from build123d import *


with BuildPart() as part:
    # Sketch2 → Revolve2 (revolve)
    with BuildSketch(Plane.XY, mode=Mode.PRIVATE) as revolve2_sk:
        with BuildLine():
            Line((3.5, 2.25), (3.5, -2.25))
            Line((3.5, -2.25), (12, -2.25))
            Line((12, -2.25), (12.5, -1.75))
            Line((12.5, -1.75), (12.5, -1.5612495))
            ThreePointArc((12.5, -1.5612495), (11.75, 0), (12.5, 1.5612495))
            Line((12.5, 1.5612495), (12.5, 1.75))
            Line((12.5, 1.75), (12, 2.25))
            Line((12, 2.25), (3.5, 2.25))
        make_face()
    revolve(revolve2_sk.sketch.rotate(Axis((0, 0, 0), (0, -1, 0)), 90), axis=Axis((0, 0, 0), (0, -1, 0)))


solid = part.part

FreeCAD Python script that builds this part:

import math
import FreeCAD as App
import Part
import Sketcher
from FreeCAD import Vector

doc = App.newDocument("Part")
body = doc.addObject("PartDesign::Body", "Body")

sketch1 = body.newObject("Sketcher::SketchObject", "Sketch")
sketch1.AttachmentSupport = (doc.getObject("XY_Plane"), [""])
sketch1.MapMode = "FlatFace"
sketch1.addGeometry([
    Part.LineSegment(Vector(3.5, 2.25, 0), Vector(3.5, -2.25, 0)),
    Part.LineSegment(Vector(3.5, -2.25, 0), Vector(12, -2.25, 0)),
    Part.LineSegment(Vector(12, -2.25, 0), Vector(12.5, -1.75, 0)),
    Part.LineSegment(Vector(12.5, -1.75, 0), Vector(12.5, -1.561249, 0)),
    Part.ArcOfCircle(Part.Circle(Vector(13.75, 0, 0), Vector(0, 0, 1), 2), math.radians(128.682187), math.radians(231.317813)),
    Part.LineSegment(Vector(12.5, 1.561249, 0), Vector(12.5, 1.75, 0)),
    Part.LineSegment(Vector(12.5, 1.75, 0), Vector(12, 2.25, 0)),
    Part.LineSegment(Vector(12, 2.25, 0), Vector(3.5, 2.25, 0)),
], False)
sketch1.addConstraint([
    Sketcher.Constraint("Coincident", 0, 2, 1, 1),
    Sketcher.Constraint("Coincident", 1, 2, 2, 1),
    Sketcher.Constraint("Coincident", 2, 2, 3, 1),
    Sketcher.Constraint("Coincident", 3, 2, 4, 2),
    Sketcher.Constraint("Coincident", 4, 1, 5, 1),
    Sketcher.Constraint("Coincident", 5, 2, 6, 1),
    Sketcher.Constraint("Coincident", 6, 2, 7, 1),
    Sketcher.Constraint("Coincident", 7, 2, 0, 1),
    Sketcher.Constraint("Vertical", 0),
    Sketcher.Constraint("Horizontal", 1),
    Sketcher.Constraint("Vertical", 3),
    Sketcher.Constraint("Vertical", 5),
    Sketcher.Constraint("Horizontal", 7),
    Sketcher.Constraint("Symmetric", 3, 2, 4, 1, -1),
    Sketcher.Constraint("Symmetric", 1, 2, 6, 2, -1),
    Sketcher.Constraint("Perpendicular", 2, 6),
    Sketcher.Constraint("Equal", 3, 5),
    Sketcher.Constraint("Radius", 4, 2.0),
    Sketcher.Constraint("DistanceX", 1, 1, 1, 2, 8.5),
    Sketcher.Constraint("DistanceY", 0, 2, 0, 1, 4.5),
    Sketcher.Constraint("DistanceX", -1, 1, 1, 2, 12.0),
    Sketcher.Constraint("DistanceX", 0, 2, 2, 2, 9.0),
    Sketcher.Constraint("DistanceX", -1, 1, 4, 3, 13.75),
])
revolution = body.newObject("PartDesign::Revolution", "Revolution")
revolution.Profile = sketch1
revolution.ReferenceAxis = (sketch1, ["V_Axis"])
revolution.Angle = 360

doc.recompute()
